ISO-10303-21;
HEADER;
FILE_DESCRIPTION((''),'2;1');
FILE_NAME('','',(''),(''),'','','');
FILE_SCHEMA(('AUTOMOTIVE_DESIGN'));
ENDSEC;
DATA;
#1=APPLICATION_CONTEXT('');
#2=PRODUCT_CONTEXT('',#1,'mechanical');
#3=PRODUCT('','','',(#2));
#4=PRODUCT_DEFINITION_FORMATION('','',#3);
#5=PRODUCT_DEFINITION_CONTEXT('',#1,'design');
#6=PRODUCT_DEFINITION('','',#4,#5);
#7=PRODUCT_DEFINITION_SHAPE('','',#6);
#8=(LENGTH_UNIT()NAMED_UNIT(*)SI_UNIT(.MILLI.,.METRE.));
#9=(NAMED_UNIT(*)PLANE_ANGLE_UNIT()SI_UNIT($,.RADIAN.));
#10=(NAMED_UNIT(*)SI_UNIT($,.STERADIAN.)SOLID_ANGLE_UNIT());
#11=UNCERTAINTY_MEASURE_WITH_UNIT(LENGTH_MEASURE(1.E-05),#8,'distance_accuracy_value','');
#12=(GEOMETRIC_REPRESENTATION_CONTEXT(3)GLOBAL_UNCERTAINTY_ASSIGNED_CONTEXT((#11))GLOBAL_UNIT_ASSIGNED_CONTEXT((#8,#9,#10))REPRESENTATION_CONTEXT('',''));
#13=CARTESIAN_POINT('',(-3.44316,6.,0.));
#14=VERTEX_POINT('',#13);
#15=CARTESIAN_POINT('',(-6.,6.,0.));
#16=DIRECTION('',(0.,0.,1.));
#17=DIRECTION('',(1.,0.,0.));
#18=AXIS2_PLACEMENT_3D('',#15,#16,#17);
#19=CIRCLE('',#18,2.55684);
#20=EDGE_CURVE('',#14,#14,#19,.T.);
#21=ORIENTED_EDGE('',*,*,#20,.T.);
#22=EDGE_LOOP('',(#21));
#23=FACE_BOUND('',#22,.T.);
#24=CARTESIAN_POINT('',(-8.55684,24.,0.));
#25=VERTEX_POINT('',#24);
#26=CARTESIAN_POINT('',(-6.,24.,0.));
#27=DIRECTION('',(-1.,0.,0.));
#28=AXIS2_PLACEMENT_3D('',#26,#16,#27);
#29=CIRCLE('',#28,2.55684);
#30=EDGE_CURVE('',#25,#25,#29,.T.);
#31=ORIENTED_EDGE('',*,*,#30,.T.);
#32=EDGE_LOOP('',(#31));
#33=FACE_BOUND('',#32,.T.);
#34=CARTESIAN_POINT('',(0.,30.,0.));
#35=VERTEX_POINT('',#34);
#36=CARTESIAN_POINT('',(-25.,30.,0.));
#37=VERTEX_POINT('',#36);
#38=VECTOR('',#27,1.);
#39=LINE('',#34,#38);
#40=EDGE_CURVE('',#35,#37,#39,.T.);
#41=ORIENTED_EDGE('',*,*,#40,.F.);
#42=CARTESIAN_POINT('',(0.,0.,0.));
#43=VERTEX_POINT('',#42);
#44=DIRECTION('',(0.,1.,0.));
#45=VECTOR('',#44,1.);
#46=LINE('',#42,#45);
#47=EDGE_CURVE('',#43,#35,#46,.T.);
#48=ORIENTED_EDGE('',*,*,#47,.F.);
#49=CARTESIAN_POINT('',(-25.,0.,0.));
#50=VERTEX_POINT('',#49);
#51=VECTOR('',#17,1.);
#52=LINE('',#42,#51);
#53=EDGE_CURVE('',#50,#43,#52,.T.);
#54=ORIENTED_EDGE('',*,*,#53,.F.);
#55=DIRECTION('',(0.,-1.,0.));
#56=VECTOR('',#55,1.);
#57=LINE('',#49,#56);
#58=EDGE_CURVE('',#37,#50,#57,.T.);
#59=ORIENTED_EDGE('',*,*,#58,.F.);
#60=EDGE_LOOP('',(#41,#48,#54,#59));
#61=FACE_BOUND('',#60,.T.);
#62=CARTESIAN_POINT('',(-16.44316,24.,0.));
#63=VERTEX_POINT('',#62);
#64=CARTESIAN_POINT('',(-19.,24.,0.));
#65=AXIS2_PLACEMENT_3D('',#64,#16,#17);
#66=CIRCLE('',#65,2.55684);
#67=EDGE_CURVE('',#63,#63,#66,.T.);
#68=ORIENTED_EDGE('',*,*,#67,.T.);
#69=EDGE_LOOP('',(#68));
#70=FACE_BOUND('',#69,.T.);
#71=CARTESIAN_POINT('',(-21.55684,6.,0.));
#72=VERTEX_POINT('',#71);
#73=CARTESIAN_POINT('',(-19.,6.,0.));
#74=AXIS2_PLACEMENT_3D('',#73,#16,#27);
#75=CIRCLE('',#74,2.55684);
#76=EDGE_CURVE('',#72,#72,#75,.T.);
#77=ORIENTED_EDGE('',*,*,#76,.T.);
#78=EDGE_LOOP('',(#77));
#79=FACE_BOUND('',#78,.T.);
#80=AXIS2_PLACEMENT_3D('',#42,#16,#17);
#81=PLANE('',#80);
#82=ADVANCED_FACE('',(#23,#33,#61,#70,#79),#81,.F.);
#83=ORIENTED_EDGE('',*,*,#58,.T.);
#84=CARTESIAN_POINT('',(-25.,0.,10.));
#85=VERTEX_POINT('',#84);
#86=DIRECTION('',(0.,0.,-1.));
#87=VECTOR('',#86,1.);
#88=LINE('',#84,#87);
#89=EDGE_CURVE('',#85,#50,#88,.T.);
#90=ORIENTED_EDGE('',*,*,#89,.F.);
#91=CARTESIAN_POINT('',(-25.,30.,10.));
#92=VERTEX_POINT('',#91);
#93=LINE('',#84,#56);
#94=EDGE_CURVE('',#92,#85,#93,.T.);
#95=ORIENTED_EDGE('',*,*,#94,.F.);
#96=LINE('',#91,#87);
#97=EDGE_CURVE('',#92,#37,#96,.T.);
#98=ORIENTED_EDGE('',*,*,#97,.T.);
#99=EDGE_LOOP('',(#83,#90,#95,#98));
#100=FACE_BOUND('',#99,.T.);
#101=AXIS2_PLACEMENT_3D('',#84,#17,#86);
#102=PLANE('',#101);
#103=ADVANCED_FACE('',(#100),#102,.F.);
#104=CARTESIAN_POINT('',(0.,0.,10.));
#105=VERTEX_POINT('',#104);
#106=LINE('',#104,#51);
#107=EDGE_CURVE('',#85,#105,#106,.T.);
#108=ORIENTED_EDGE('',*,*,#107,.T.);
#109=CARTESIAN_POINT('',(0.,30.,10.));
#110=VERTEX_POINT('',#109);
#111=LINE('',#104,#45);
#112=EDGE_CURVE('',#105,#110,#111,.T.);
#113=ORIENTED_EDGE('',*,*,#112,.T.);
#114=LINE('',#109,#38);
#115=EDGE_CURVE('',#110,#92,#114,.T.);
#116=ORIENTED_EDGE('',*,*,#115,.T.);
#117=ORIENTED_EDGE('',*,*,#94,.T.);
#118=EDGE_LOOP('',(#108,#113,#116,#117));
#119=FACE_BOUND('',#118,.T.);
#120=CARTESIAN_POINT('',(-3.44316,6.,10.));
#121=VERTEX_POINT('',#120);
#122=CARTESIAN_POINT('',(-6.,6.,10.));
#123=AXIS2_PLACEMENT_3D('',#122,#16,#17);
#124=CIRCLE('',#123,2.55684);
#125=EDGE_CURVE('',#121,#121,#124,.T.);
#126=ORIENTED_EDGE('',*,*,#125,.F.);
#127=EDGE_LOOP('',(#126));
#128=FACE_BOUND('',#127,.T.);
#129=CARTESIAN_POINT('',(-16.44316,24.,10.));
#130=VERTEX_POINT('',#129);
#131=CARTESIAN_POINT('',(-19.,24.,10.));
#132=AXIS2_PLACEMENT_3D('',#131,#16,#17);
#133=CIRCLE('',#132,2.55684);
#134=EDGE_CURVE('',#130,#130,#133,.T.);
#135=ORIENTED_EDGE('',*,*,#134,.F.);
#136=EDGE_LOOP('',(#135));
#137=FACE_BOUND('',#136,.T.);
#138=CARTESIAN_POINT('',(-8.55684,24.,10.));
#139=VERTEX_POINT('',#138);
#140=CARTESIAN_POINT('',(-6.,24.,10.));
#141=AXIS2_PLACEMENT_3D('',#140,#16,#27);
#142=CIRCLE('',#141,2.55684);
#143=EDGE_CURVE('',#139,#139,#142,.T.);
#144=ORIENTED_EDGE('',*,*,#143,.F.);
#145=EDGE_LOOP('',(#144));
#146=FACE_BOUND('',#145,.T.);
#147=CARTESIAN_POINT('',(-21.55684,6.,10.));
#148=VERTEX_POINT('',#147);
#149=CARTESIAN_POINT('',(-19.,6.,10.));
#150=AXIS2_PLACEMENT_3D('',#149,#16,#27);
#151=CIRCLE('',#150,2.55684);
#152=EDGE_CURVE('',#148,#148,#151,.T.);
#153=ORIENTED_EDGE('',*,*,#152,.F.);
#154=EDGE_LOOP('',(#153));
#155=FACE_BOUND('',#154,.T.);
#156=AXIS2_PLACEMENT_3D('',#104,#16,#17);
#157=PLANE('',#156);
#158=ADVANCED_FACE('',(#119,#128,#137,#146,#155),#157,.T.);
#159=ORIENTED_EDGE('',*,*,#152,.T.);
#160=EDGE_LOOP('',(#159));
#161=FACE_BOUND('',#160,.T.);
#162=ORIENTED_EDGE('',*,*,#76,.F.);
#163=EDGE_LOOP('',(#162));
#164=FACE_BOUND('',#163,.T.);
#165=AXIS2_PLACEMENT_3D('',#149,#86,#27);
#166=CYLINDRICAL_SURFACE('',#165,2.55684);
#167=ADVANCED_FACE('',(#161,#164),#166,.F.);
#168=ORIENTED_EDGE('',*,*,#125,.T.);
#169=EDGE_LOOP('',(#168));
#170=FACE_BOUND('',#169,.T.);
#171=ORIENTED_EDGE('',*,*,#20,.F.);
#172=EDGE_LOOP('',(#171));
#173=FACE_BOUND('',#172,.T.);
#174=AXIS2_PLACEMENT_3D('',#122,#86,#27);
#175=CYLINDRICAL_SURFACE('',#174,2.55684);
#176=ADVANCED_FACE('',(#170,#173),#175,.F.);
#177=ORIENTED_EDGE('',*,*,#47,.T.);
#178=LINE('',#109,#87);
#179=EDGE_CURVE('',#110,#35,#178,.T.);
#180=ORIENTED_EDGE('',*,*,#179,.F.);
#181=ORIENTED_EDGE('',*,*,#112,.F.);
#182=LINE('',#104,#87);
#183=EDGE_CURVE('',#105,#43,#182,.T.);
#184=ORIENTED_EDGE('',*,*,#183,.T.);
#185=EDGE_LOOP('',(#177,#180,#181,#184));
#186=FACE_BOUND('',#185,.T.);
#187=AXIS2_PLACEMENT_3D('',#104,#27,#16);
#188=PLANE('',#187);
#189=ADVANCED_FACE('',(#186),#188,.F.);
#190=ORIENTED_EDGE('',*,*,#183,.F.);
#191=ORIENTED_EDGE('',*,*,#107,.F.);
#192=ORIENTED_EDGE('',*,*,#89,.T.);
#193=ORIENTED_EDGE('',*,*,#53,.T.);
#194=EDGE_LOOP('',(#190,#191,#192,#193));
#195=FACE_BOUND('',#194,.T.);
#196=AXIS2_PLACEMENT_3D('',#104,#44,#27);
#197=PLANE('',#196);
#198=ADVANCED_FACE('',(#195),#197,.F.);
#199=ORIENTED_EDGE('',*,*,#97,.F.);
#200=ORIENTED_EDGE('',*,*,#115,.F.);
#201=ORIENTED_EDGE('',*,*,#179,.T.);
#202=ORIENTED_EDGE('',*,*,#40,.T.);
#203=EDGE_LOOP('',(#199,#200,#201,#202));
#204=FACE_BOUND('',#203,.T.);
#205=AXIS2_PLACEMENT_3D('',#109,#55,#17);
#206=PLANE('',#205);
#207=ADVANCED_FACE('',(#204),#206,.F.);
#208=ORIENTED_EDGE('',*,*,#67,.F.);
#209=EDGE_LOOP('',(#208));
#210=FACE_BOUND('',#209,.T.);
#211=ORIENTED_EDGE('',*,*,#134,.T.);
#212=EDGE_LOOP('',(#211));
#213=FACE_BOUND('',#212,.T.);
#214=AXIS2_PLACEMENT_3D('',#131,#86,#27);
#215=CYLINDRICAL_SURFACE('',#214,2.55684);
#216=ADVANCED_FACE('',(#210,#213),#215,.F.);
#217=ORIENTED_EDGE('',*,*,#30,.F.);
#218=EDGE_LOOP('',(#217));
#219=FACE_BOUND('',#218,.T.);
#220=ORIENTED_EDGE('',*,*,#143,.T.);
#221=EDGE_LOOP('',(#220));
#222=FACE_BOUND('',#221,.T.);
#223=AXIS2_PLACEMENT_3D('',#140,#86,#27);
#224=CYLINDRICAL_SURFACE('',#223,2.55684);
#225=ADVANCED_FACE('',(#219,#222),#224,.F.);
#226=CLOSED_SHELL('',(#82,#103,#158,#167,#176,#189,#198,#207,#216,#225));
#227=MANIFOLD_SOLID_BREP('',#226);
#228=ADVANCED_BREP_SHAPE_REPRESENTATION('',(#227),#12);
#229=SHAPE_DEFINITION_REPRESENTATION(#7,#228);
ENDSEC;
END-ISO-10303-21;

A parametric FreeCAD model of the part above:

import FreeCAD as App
import Part
import Sketcher

V = App.Vector
Q = App.Units.Quantity

doc = App.newDocument("Part")
body = doc.addObject("PartDesign::Body", "Body")

# Sketch on XY plane
sketch1 = body.newObject("Sketcher::SketchObject", "Sketch")
sketch1.AttachmentSupport = (doc.getObject("XY_Plane"), [""])
sketch1.MapMode = "FlatFace"
sketch1.addGeometry(Part.LineSegment(V(-25, 30, 0), V(-25, 0, 0)), False)
sketch1.addGeometry(Part.LineSegment(V(-25, 0, 0), V(0, 0, 0)), False)
sketch1.addGeometry(Part.LineSegment(V(0, 0, 0), V(0, 30, 0)), False)
sketch1.addGeometry(Part.LineSegment(V(0, 30, 0), V(-25, 30, 0)), False)
sketch1.addGeometry(Part.Circle(V(-19, 6, 0), V(0, 0, 1), 2.6), False)
sketch1.addGeometry(Part.Circle(V(-6, 6, 0), V(0, 0, 1), 2.6), False)
sketch1.addGeometry(Part.Circle(V(-19, 24, 0), V(0, 0, 1), 2.6), False)
sketch1.addGeometry(Part.Circle(V(-6, 24, 0), V(0, 0, 1), 2.6), False)
sketch1.addConstraint(Sketcher.Constraint("Coincident", 0, 2, 1, 1))
sketch1.addConstraint(Sketcher.Constraint("Coincident", 1, 2, 2, 1))
sketch1.addConstraint(Sketcher.Constraint("Coincident", 2, 2, 3, 1))
sketch1.addConstraint(Sketcher.Constraint("Coincident", 3, 2, 0, 1))
sketch1.addConstraint(Sketcher.Constraint("Vertical", 0))
sketch1.addConstraint(Sketcher.Constraint("Horizontal", 1))
sketch1.addConstraint(Sketcher.Constraint("Vertical", 2))
sketch1.addConstraint(Sketcher.Constraint("Horizontal", 3))
sketch1.addConstraint(Sketcher.Constraint("Coincident", 1, 2, -1, 1))
sketch1.addConstraint(Sketcher.Constraint("Equal", 4, 5))
sketch1.addConstraint(Sketcher.Constraint("Equal", 5, 6))
sketch1.addConstraint(Sketcher.Constraint("Equal", 6, 7))
sketch1.addConstraint(Sketcher.Constraint("Horizontal", 4, 3, 5, 3))
sketch1.addConstraint(Sketcher.Constraint("Horizontal", 6, 3, 7, 3))
sketch1.addConstraint(Sketcher.Constraint("Vertical", 4, 3, 6, 3))
sketch1.addConstraint(Sketcher.Constraint("Vertical", 5, 3, 7, 3))
sketch1.addConstraint(Sketcher.Constraint("DistanceX", 1, 1, 1, 2, Q("25 mm")))
sketch1.addConstraint(Sketcher.Constraint("DistanceY", 0, 2, 0, 1, Q("30 mm")))
sketch1.addConstraint(Sketcher.Constraint("DistanceX", 4, 3, -1, 1, Q("19 mm")))
sketch1.addConstraint(Sketcher.Constraint("DistanceY", -1, 1, 4, 3, Q("6 mm")))
sketch1.addConstraint(Sketcher.Constraint("DistanceX", 5, 3, -1, 1, Q("6 mm")))
sketch1.addConstraint(Sketcher.Constraint("DistanceY", -1, 1, 6, 3, Q("24 mm")))
sketch1.addConstraint(Sketcher.Constraint("Diameter", 4, Q("5.11368 mm")))
pad1 = body.newObject("PartDesign::Pad", "Pad")
pad1.Profile = sketch1
pad1.Length = 10

doc.recompute()
